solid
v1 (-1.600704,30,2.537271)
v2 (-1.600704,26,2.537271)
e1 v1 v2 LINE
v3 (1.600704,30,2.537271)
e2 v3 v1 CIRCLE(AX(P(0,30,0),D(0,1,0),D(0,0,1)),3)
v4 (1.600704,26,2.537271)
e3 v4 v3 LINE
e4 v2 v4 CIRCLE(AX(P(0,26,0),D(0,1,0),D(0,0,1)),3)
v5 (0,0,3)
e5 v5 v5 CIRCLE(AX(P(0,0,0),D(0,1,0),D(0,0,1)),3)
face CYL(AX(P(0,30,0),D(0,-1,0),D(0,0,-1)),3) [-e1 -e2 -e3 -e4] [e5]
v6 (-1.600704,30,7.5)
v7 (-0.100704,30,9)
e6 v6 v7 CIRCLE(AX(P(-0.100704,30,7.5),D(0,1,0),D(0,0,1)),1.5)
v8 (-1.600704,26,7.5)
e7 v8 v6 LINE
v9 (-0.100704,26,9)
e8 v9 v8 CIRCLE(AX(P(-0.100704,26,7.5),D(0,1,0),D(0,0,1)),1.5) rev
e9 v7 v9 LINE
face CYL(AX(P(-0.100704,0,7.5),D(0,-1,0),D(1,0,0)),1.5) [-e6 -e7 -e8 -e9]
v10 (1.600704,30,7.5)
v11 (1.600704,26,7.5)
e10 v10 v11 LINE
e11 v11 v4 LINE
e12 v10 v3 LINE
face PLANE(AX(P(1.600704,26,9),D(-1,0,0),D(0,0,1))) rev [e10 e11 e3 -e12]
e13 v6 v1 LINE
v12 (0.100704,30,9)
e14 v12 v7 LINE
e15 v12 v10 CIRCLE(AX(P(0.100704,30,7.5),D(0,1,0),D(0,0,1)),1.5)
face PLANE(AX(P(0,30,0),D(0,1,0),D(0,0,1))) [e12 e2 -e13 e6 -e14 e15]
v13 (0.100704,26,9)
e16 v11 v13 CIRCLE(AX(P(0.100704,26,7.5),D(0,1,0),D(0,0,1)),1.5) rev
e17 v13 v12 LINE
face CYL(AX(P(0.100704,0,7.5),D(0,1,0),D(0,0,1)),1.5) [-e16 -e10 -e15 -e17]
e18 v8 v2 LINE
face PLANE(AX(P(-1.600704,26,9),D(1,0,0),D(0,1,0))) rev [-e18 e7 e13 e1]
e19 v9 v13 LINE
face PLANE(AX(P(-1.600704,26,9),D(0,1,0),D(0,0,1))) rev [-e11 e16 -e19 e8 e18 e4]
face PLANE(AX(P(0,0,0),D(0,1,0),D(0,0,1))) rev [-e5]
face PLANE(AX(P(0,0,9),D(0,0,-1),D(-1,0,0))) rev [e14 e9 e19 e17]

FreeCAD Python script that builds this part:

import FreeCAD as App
import Part
import Sketcher
from FreeCAD import Vector


def edges_at(feature, points):
    """Names of the edges that pass closest to the given points."""
    edges = feature.Shape.Edges
    near = lambda p: min(range(len(edges)), key=lambda i: edges[i].distToShape(Part.Vertex(*p))[0])
    return sorted({f"Edge{near(p) + 1}" for p in points})


def add_polygon(sketch, points):
    """Adds a closed chain of lines whose ends are joined by coincident constraints."""
    first, n = sketch.GeometryCount, len(points)
    for a, b in zip(points, points[1:] + points[:1]):
        sketch.addGeometry(Part.LineSegment(App.Vector(*a, 0), App.Vector(*b, 0)), False)
    for i in range(n):
        sketch.addConstraint(Sketcher.Constraint("Coincident", first + i, 2, first + (i + 1) % n, 1))

doc = App.newDocument("Part")
params = doc.addObject("Spreadsheet::Sheet", "Params")
for row, (alias, value) in enumerate([
    ("sketch1_diameter", "6 mm"),
    ("pad1_length", "30 mm"),
    ("sketch2_height", "4 mm"),
    ("pad2_length", "9 mm"),
    ("fillet_radius", "1.5 mm"),
], start=1):
    params.set(f"A{row}", alias)
    params.set(f"B{row}", "=" + value)
    params.setAlias(f"B{row}", alias)

body = doc.addObject("PartDesign::Body", "Body")

# Sketch on XZ plane
sketch1 = body.newObject("Sketcher::SketchObject", "Sketch")
sketch1.AttachmentSupport = (doc.getObject("XZ_Plane"), [""])
sketch1.MapMode = "FlatFace"
sketch1.addGeometry(Part.Circle(Vector(0, 0, 0), Vector(0, 0, 1), 3), False)
sketch1.addConstraint([
    Sketcher.Constraint("Coincident", 0, 3, -1, 1),
    Sketcher.Constraint("Diameter", 0, 6.0),
])
sketch1.setExpression("Constraints[1]", "Params.sketch1_diameter")
pad1 = body.newObject("PartDesign::Pad", "Pad")
pad1.Profile = sketch1
pad1.setExpression("Length", "Params.pad1_length")
pad1.Reversed = True

# Sketch on XY plane
sketch2 = body.newObject("Sketcher::SketchObject", "Sketch001")
sketch2.AttachmentSupport = (doc.getObject("XY_Plane"), [""])
sketch2.MapMode = "FlatFace"
add_polygon(sketch2, [(-1.6, 30), (-1.6, 26), (1.6, 26), (1.6, 30)])  # lines 0-3
sketch2.addConstraint([
    Sketcher.Constraint("Vertical", 0),
    Sketcher.Constraint("Horizontal", 1),
    Sketcher.Constraint("Vertical", 2),
    Sketcher.Constraint("Horizontal", 3),
    Sketcher.Constraint("DistanceY", 0, 2, 0, 1, 4.0),
    Sketcher.Constraint("DistanceY", -1, 1, 0, 2, 26.0),
    Sketcher.Constraint("DistanceX", 1, 1, 1, 2, 3.201409),
    Sketcher.Constraint("DistanceX", 0, 2, -1, 1, 1.600704),
])
sketch2.setExpression("Constraints[8]", "Params.sketch2_height")
pad2 = body.newObject("PartDesign::Pad", "Pad001")
pad2.Profile = sketch2
pad2.setExpression("Length", "Params.pad2_length")
doc.recompute()

fillet = body.newObject("PartDesign::Fillet", "Fillet")
fillet.Base = (pad2, edges_at(pad2, [(1.601, 28, 9), (-1.601, 28, 9)]))
fillet.setExpression("Radius", "Params.fillet_radius")

doc.recompute()
